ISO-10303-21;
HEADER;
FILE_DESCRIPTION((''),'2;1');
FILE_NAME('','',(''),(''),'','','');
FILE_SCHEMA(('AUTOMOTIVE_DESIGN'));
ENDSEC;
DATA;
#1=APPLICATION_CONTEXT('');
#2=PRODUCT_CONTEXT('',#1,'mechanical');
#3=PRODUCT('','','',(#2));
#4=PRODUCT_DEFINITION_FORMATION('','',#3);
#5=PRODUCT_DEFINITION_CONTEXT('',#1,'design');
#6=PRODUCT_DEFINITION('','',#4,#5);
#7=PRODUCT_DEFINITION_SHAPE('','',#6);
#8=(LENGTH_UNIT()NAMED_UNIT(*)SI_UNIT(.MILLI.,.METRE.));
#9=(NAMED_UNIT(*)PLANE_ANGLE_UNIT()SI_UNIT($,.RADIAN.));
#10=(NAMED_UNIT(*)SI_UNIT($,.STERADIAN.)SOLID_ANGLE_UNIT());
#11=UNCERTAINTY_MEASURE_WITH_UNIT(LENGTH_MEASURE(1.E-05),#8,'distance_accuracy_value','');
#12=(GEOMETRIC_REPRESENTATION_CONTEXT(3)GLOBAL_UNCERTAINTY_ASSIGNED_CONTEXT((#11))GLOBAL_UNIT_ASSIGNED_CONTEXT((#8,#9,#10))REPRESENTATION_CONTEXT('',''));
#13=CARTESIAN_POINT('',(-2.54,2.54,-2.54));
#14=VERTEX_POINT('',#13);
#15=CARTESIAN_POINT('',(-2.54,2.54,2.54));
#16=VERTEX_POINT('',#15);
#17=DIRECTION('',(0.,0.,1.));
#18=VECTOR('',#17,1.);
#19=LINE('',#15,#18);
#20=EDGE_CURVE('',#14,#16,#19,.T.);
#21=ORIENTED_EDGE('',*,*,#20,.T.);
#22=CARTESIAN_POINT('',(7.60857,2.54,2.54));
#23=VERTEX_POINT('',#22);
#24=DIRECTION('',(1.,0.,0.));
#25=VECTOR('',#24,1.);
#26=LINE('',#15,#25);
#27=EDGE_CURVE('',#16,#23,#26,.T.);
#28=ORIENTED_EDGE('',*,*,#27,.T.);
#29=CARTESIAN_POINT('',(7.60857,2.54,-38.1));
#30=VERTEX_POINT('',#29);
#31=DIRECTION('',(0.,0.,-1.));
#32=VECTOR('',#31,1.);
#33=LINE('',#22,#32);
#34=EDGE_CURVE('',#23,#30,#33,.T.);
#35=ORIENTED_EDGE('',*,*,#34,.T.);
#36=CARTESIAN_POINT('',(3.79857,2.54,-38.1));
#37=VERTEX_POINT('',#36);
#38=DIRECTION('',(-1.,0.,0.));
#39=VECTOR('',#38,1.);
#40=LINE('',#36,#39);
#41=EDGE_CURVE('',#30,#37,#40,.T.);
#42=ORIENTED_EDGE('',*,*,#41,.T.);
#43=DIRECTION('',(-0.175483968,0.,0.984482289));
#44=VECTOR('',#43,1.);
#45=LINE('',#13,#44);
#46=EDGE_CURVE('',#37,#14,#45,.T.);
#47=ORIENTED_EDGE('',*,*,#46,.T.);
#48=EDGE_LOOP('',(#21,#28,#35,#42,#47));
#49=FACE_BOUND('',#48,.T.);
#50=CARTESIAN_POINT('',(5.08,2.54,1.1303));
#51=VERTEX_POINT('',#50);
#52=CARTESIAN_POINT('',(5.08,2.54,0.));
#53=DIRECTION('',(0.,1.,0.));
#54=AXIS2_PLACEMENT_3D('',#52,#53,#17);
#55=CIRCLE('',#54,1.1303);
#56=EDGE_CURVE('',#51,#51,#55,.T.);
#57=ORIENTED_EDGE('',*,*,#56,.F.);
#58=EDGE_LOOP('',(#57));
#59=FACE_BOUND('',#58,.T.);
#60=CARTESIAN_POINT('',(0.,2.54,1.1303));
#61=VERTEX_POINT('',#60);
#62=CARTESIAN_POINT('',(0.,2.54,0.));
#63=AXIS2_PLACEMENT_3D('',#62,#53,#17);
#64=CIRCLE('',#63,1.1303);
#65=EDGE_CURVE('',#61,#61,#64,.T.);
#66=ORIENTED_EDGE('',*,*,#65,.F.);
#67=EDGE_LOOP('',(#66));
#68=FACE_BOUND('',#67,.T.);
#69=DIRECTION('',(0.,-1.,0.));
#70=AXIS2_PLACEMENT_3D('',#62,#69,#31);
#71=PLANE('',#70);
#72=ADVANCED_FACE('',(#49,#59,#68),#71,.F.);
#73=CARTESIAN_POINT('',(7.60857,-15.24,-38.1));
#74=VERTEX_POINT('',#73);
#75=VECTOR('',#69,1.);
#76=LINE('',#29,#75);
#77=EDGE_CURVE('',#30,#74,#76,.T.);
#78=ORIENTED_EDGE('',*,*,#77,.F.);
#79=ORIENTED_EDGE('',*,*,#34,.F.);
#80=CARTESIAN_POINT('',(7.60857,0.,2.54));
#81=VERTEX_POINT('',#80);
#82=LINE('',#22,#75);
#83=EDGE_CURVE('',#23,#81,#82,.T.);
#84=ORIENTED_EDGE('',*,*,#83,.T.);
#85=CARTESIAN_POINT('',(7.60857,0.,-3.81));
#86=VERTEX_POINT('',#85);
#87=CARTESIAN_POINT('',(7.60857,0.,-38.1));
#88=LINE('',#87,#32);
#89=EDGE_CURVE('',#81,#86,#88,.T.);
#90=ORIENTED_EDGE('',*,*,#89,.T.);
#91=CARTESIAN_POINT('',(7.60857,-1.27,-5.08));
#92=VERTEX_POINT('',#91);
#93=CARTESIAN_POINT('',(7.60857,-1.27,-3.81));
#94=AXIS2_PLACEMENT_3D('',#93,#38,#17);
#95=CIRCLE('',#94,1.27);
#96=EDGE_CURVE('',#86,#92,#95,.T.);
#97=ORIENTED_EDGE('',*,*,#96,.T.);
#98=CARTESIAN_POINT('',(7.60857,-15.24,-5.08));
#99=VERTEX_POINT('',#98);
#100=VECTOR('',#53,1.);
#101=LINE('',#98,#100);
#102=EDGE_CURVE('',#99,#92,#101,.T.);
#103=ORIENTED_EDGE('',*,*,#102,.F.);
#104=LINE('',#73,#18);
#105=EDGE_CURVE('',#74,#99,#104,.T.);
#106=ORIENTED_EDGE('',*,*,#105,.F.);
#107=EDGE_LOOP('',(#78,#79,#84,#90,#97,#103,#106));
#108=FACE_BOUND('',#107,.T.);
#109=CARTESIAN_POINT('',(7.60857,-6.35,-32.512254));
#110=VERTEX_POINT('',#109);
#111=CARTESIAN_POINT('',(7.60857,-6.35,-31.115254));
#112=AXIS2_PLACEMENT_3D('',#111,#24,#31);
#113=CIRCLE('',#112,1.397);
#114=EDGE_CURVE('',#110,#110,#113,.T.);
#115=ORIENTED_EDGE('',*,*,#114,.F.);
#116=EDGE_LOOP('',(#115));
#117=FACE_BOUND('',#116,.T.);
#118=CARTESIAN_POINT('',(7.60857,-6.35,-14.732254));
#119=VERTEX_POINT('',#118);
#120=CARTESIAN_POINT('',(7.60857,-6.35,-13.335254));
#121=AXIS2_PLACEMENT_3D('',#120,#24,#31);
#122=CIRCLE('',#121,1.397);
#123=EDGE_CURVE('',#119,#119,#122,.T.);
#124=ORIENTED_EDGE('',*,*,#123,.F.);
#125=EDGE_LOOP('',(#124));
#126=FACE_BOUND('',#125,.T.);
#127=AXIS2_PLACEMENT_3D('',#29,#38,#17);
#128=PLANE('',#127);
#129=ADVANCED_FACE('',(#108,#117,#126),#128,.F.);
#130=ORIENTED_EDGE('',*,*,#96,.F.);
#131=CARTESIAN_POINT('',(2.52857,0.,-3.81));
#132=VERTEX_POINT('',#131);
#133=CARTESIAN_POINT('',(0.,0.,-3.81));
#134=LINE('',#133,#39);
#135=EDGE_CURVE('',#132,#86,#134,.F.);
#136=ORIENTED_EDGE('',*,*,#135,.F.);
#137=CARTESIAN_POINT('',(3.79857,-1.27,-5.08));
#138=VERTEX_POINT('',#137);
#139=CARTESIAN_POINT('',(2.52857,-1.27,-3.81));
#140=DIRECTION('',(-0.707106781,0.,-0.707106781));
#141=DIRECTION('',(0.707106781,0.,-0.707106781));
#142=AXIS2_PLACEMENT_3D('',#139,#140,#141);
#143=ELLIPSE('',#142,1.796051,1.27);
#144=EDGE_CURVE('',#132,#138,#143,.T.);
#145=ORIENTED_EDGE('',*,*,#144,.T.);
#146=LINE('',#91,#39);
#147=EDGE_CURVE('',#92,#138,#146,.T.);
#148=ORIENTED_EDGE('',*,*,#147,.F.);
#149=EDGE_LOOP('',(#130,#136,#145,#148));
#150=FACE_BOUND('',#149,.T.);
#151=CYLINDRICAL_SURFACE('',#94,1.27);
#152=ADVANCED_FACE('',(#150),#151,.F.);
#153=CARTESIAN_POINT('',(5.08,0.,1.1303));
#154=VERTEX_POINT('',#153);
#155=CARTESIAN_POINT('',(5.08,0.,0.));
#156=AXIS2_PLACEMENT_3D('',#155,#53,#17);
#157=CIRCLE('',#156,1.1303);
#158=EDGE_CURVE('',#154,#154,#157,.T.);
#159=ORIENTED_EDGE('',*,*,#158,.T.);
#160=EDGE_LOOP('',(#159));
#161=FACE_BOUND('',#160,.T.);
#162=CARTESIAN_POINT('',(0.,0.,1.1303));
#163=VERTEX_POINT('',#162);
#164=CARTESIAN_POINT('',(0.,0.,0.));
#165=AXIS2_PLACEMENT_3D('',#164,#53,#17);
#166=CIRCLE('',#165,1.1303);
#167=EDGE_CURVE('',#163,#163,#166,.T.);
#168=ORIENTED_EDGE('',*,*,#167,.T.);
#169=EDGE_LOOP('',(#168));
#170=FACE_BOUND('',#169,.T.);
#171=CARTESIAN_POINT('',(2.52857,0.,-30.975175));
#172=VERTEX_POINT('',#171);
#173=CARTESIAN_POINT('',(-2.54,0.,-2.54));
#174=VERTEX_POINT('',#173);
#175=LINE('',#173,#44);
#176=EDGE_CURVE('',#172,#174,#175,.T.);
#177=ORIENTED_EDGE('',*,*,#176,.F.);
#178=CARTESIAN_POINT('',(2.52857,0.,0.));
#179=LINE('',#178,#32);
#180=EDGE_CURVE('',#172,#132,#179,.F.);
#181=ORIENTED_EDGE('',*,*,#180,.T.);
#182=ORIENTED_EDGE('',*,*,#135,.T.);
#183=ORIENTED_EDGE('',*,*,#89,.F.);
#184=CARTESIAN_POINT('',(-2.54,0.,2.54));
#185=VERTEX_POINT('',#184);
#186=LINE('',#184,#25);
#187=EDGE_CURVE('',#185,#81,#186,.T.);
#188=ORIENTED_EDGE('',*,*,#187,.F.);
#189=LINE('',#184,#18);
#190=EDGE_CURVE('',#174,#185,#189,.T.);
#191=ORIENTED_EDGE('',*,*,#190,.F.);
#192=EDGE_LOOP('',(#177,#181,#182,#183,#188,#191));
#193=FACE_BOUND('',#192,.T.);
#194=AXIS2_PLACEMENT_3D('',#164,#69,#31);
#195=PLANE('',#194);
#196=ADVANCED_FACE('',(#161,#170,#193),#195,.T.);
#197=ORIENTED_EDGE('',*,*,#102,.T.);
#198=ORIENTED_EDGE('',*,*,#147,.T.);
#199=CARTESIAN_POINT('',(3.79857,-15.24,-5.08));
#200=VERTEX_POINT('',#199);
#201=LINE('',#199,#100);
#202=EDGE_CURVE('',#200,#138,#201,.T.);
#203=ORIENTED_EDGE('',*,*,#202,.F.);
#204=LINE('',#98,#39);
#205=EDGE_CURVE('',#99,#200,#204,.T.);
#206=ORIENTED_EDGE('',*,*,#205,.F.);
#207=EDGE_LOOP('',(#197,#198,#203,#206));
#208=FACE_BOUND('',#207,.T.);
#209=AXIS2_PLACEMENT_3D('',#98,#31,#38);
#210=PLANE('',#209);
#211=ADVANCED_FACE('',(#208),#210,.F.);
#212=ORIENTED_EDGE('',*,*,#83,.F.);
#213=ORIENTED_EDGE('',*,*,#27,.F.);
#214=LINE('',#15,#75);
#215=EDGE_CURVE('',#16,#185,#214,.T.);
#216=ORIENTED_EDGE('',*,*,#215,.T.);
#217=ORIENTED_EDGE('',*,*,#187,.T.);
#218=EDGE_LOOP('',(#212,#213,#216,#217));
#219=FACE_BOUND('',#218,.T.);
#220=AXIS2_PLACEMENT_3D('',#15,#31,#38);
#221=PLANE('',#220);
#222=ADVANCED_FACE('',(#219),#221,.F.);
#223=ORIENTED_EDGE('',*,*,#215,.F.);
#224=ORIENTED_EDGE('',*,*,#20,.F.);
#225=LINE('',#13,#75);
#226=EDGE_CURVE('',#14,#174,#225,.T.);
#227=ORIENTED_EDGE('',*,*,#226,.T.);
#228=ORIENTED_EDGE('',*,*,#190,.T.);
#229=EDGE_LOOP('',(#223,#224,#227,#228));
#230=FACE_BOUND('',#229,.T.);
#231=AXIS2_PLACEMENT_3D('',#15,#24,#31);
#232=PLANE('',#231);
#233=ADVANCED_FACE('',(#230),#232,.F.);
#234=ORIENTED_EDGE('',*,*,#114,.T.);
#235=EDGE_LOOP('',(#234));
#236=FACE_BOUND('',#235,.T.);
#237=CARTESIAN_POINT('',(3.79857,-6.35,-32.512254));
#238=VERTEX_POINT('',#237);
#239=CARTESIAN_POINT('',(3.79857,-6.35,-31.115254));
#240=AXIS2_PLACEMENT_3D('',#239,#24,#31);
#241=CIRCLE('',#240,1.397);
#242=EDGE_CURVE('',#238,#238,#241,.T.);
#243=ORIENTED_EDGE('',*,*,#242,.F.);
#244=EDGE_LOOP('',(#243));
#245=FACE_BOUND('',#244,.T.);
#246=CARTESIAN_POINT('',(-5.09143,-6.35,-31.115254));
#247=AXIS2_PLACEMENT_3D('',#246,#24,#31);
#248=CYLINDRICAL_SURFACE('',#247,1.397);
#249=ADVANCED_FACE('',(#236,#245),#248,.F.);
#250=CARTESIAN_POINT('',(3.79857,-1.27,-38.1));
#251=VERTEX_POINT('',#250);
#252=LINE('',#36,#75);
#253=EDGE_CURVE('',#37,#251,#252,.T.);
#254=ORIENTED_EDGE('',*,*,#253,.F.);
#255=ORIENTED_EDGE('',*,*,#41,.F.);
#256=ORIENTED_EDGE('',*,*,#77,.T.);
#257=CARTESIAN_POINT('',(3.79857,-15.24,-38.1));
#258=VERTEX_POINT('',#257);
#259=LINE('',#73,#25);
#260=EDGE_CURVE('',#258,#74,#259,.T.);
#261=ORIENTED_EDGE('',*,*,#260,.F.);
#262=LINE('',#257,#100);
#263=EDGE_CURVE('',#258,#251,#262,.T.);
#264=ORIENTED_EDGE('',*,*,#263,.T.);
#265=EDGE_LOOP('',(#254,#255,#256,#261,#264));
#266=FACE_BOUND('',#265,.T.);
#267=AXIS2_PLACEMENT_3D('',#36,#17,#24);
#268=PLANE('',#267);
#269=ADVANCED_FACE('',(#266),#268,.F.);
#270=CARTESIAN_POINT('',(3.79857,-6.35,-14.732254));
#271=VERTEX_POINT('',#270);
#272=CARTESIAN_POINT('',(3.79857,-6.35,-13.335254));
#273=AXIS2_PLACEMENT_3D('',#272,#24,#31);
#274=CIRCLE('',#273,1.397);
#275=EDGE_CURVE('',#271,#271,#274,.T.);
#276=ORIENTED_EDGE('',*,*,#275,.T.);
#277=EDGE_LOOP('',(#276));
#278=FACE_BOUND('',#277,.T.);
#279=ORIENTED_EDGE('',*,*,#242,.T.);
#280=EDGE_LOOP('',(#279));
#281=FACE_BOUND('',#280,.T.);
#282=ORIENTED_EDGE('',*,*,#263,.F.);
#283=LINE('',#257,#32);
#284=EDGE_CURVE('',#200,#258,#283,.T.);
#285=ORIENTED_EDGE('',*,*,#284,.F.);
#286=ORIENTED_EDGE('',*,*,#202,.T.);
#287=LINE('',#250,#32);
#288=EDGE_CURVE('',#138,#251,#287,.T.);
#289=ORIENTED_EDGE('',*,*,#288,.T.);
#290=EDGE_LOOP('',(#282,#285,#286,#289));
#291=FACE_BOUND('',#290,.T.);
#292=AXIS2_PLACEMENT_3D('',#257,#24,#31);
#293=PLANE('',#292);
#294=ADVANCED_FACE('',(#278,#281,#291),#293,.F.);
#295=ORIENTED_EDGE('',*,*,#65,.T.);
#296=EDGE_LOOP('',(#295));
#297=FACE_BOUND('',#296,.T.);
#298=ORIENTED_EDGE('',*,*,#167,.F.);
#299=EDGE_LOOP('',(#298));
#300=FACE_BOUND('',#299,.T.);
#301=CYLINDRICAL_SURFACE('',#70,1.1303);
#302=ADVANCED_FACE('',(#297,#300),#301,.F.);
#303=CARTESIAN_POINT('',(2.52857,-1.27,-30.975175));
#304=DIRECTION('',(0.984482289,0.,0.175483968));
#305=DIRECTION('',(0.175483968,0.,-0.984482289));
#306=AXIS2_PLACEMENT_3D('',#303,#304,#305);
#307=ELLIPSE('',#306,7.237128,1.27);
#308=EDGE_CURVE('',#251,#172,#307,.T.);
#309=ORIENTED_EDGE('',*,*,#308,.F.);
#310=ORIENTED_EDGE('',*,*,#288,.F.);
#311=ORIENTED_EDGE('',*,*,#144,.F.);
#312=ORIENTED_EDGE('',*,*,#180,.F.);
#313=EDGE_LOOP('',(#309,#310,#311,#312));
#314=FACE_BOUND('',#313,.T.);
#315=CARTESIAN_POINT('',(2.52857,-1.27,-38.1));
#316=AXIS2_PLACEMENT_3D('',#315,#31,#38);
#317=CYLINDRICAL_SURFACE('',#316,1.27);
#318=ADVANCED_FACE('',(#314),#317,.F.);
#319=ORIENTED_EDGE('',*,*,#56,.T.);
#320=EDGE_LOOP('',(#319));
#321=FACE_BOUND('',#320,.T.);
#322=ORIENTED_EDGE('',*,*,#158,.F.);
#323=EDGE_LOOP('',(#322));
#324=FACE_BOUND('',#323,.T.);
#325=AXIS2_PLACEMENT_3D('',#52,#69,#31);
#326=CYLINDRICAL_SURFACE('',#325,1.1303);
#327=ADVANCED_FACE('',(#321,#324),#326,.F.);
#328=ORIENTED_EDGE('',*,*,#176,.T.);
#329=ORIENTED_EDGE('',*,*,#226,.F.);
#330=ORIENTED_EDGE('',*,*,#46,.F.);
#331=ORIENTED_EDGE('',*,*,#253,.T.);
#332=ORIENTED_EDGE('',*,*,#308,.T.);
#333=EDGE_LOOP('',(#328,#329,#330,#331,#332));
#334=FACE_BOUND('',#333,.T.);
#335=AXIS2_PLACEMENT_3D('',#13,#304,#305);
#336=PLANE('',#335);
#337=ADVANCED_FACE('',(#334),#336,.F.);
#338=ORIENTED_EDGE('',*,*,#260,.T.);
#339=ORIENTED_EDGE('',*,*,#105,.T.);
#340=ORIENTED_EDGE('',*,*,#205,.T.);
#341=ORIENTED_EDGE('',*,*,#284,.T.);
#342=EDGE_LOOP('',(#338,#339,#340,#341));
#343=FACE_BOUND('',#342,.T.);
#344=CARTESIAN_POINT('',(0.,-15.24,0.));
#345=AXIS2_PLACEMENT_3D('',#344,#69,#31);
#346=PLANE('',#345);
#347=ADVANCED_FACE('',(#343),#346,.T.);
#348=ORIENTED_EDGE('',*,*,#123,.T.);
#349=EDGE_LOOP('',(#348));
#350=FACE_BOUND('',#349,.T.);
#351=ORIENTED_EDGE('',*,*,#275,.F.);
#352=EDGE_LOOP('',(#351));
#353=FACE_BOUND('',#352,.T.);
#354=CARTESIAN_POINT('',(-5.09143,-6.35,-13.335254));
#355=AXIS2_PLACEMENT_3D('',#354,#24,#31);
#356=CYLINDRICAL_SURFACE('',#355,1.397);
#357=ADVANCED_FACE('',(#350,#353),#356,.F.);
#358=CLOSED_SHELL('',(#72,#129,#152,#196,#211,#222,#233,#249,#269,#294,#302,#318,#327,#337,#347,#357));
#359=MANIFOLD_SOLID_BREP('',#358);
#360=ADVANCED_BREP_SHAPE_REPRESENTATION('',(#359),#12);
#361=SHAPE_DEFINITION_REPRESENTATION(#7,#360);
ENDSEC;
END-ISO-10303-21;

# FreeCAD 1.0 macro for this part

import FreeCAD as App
import Part
import Sketcher
from FreeCAD import Vector
Q = App.Units.Quantity


def edges_at(feature, points):
    """Names of the edges that pass closest to the given points."""
    edges = feature.Shape.Edges
    near = lambda p: min(range(len(edges)), key=lambda i: edges[i].distToShape(Part.Vertex(*p))[0])
    return sorted({f"Edge{near(p) + 1}" for p in points})


def add_polygon(sketch, points):
    """Adds a closed chain of lines whose ends are joined by coincident constraints."""
    first, n = sketch.GeometryCount, len(points)
    for a, b in zip(points, points[1:] + points[:1]):
        sketch.addGeometry(Part.LineSegment(App.Vector(*a, 0), App.Vector(*b, 0)), False)
    for i in range(n):
        sketch.addConstraint(Sketcher.Constraint("Coincident", first + i, 2, first + (i + 1) % n, 1))

doc = App.newDocument("Part")
body = doc.addObject("PartDesign::Body", "Body")

# Sketch on XZ plane
sketch1 = body.newObject("Sketcher::SketchObject", "Sketch")
sketch1.AttachmentSupport = (doc.getObject("XZ_Plane"), [""])
sketch1.MapMode = "FlatFace"
add_polygon(sketch1, [(3.8, -38.1), (-2.5, -2.5), (-2.5, 2.5), (7.6, 2.5), (7.6, -38.1)])  # lines 0-4
sketch1.addGeometry(Part.Circle(Vector(5.1, 0, 0), Vector(0, 0, 1), 1.1), False)  # 5
sketch1.addGeometry(Part.Circle(Vector(0, 0, 0), Vector(0, 0, 1), 1.1), False)  # 6
sketch1.addConstraint(Sketcher.Constraint("Vertical", 1))
sketch1.addConstraint(Sketcher.Constraint("Horizontal", 2))
sketch1.addConstraint(Sketcher.Constraint("Vertical", 3))
sketch1.addConstraint(Sketcher.Constraint("Horizontal", 4))
sketch1.addConstraint(Sketcher.Constraint("Coincident", 6, 3, -1, 1))
sketch1.addConstraint(Sketcher.Constraint("Equal", 5, 6))
sketch1.addConstraint(Sketcher.Constraint("PointOnObject", 5, 3, -1))
sketch1.addConstraint(Sketcher.Constraint("Diameter", 5, Q("0.089 in")))
sketch1.addConstraint(Sketcher.Constraint("DistanceY", 1, 1, 1, 2, Q("0.2 in")))
sketch1.addConstraint(Sketcher.Constraint("DistanceY", 3, 2, 3, 1, Q("1.6 in")))
sketch1.addConstraint(Sketcher.Constraint("DistanceX", 4, 2, 4, 1, Q("0.15 in")))
sketch1.addConstraint(Sketcher.Constraint("DistanceX", -1, 1, 5, 3, Q("0.2 in")))
sketch1.addConstraint(Sketcher.Constraint("DistanceX", 0, 2, -1, 1, Q("0.1 in")))
sketch1.addConstraint(Sketcher.Constraint("DistanceY", 0, 2, -1, 1, Q("0.1 in")))
sketch1.addConstraint(Sketcher.Constraint("DistanceX", 2, 1, 2, 2, Q("10.14857 mm")))
pad1 = body.newObject("PartDesign::Pad", "Pad")
pad1.Profile = sketch1
pad1.Length = Q("0.1 in")
pad1.Reversed = True

# Sketch on XZ plane
sketch2 = body.newObject("Sketcher::SketchObject", "Sketch001")
sketch2.AttachmentSupport = (doc.getObject("XZ_Plane"), [""])
sketch2.MapMode = "FlatFace"
add_polygon(sketch2, [(3.8, -5.1), (3.8, -38.1), (7.6, -38.1), (7.6, -5.1)])  # lines 0-3
sketch2.addConstraint(Sketcher.Constraint("Vertical", 0))
sketch2.addConstraint(Sketcher.Constraint("Horizontal", 1))
sketch2.addConstraint(Sketcher.Constraint("Vertical", 2))
sketch2.addConstraint(Sketcher.Constraint("Horizontal", 3))
sketch2.addConstraint(Sketcher.Constraint("DistanceY", 0, 2, 0, 1, Q("1.3 in")))
sketch2.addConstraint(Sketcher.Constraint("DistanceX", 1, 1, 1, 2, Q("0.15 in")))
sketch2.addConstraint(Sketcher.Constraint("DistanceY", 0, 2, -1, 1, Q("1.5 in")))
sketch2.addConstraint(Sketcher.Constraint("DistanceX", -1, 1, 0, 2, Q("3.79857 mm")))
pad2 = body.newObject("PartDesign::Pad", "Pad001")
pad2.Profile = sketch2
pad2.Length = Q("0.6 in")
doc.recompute()

fillet = body.newObject("PartDesign::Fillet", "Fillet")
fillet.Base = (pad2, edges_at(pad2, [(5.704, 0, -5.08), (3.799, 0, -21.59)]))
fillet.Radius = Q("0.05 in")

# Sketch on YZ plane
sketch3 = body.newObject("Sketcher::SketchObject", "Sketch002")
sketch3.AttachmentSupport = (doc.getObject("YZ_Plane"), [""])
sketch3.MapMode = "FlatFace"
sketch3.AttachmentOffset = App.Placement(Vector(0, 0, 7.60857), App.Rotation())
sketch3.addGeometry(Part.Circle(Vector(-6.3, -13.3, 0), Vector(0, 0, 1), 1.4), False)
sketch3.addGeometry(Part.Circle(Vector(-6.3, -31.1, 0), Vector(0, 0, 1), 1.4), False)
sketch3.addConstraint(Sketcher.Constraint("Equal", 0, 1))
sketch3.addConstraint(Sketcher.Constraint("Vertical", 0, 3, 1, 3))
sketch3.addConstraint(Sketcher.Constraint("Diameter", 0, Q("0.11 in")))
sketch3.addConstraint(Sketcher.Constraint("DistanceY", 1, 3, 0, 3, Q("0.7 in")))
sketch3.addConstraint(Sketcher.Constraint("DistanceX", 0, 3, -1, 1, Q("0.25 in")))
sketch3.addConstraint(Sketcher.Constraint("DistanceY", 0, 3, -1, 1, Q("13.335254 mm")))
pocket1 = body.newObject("PartDesign::Pocket", "Pocket")
pocket1.Profile = sketch3
pocket1.Length = Q("0.5 in")

doc.recompute()
